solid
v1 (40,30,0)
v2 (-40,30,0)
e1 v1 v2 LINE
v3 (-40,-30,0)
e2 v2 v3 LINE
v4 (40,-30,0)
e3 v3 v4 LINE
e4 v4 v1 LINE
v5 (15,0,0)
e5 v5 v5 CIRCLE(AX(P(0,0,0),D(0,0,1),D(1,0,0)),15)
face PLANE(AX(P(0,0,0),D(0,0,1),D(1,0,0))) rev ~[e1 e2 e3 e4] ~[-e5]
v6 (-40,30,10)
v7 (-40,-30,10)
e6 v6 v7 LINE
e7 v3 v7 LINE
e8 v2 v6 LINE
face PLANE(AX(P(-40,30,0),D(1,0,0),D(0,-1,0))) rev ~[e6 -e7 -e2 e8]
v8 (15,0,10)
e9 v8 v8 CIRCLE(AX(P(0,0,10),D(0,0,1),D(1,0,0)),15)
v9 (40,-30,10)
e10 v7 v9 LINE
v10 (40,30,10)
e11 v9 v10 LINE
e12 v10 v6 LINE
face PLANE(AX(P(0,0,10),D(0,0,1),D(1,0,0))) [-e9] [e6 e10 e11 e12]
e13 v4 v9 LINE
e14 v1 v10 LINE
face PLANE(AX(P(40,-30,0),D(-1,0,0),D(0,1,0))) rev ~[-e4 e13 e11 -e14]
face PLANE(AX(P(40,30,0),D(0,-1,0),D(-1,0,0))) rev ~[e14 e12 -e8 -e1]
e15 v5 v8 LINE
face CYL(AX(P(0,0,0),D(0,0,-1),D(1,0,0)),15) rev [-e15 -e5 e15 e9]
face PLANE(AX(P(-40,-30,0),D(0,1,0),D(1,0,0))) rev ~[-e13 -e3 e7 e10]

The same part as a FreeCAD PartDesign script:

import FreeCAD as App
import Part
import Sketcher
from FreeCAD import Vector
Q = App.Units.Quantity

doc = App.newDocument("Part")
params = doc.addObject("Spreadsheet::Sheet", "Params")
for row, (alias, value) in enumerate([
    ("sketch1_diameter", "30 mm"),
    ("sketch1_width", "80 mm"),
    ("sketch1_height", "60 mm"),
    ("pad1_length", "10 mm"),
], start=1):
    params.set(f"A{row}", alias)
    params.set(f"B{row}", "=" + value)
    params.setAlias(f"B{row}", alias)

body = doc.addObject("PartDesign::Body", "Body")

# Sketch on XY plane
sketch1 = body.newObject("Sketcher::SketchObject", "Sketch")
sketch1.AttachmentSupport = (doc.getObject("XY_Plane"), [""])
sketch1.MapMode = "FlatFace"
sketch1.addGeometry([
    Part.LineSegment(Vector(40, -30, 0), Vector(40, 30, 0)),  # 0
    Part.LineSegment(Vector(40, 30, 0), Vector(-40, 30, 0)),  # 1
    Part.LineSegment(Vector(-40, 30, 0), Vector(-40, -30, 0)),  # 2
    Part.LineSegment(Vector(-40, -30, 0), Vector(40, -30, 0)),  # 3
    Part.Circle(Vector(0, 0, 0), Vector(0, 0, 1), 15),  # 4
], False)
sketch1.addConstraint([
    Sketcher.Constraint("Coincident", 0, 2, 1, 1),
    Sketcher.Constraint("Coincident", 1, 2, 2, 1),
    Sketcher.Constraint("Coincident", 2, 2, 3, 1),
    Sketcher.Constraint("Coincident", 3, 2, 0, 1),
    Sketcher.Constraint("Vertical", 0),
    Sketcher.Constraint("Horizontal", 1),
    Sketcher.Constraint("Vertical", 2),
    Sketcher.Constraint("Horizontal", 3),
    Sketcher.Constraint("Coincident", 4, 3, -1, 1),
    Sketcher.Constraint("Symmetric", 0, 2, 2, 2, -1, 1),
    Sketcher.Constraint("Diameter", 4, Q("30 mm")),
    Sketcher.Constraint("DistanceX", 1, 2, 1, 1, Q("80 mm")),
    Sketcher.Constraint("DistanceY", 0, 1, 0, 2, Q("60 mm")),
])
sketch1.setExpression("Constraints[10]", "Params.sketch1_diameter")
sketch1.setExpression("Constraints[11]", "Params.sketch1_width")
sketch1.setExpression("Constraints[12]", "Params.sketch1_height")
pad1 = body.newObject("PartDesign::Pad", "Pad")
pad1.Profile = sketch1
pad1.setExpression("Length", "Params.pad1_length")

doc.recompute()
